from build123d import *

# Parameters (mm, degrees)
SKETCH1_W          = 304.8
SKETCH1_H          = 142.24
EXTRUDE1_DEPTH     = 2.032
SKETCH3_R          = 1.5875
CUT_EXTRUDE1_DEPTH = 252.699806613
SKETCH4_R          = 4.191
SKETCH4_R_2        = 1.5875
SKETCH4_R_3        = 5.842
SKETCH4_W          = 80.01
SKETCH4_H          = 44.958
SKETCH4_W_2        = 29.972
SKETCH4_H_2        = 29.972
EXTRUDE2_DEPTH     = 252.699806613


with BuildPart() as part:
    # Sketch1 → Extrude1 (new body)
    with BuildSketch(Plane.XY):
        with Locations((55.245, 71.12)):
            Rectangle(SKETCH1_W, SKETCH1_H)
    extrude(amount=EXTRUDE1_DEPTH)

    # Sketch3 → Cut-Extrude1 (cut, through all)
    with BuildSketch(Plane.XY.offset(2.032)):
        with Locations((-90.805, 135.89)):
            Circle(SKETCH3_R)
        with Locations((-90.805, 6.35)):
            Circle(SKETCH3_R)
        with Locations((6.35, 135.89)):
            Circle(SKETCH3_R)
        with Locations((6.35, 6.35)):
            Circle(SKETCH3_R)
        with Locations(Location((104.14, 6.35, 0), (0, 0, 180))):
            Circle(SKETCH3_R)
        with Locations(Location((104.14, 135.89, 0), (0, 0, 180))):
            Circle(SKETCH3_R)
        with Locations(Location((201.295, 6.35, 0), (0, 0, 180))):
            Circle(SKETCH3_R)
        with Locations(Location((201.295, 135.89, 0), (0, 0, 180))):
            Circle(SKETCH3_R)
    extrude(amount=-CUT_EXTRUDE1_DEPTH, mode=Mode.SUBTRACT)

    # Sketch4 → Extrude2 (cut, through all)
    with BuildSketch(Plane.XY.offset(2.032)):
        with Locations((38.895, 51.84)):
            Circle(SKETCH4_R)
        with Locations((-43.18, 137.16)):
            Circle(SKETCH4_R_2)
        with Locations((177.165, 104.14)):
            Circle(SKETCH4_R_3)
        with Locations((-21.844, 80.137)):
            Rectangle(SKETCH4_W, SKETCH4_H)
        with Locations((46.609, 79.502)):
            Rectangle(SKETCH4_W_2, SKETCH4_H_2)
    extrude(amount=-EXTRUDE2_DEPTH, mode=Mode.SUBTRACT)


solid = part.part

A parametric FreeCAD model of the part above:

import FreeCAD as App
import Part
import Sketcher

V = App.Vector
Q = App.Units.Quantity


def add_polygon(sketch, points):
    """Adds a closed chain of lines whose ends are joined by coincident constraints."""
    first, n = sketch.GeometryCount, len(points)
    for a, b in zip(points, points[1:] + points[:1]):
        sketch.addGeometry(Part.LineSegment(App.Vector(*a, 0), App.Vector(*b, 0)), False)
    for i in range(n):
        sketch.addConstraint(Sketcher.Constraint("Coincident", first + i, 2, first + (i + 1) % n, 1))

doc = App.newDocument("Part")
body = doc.addObject("PartDesign::Body", "Body")

# Sketch on XY plane
sketch1 = doc.addObject("Sketcher::SketchObject", "Sketch")
body.addObject(sketch1)
sketch1.AttachmentSupport = (doc.XY_Plane, [""])
sketch1.MapMode = "FlatFace"
add_polygon(sketch1, [(-97.155, 142.24), (-97.155, 0), (207.645, 0), (207.645, 142.24)])  # lines 0-3
sketch1.addConstraint([
    Sketcher.Constraint("Vertical", 0),
    Sketcher.Constraint("Horizontal", 1),
    Sketcher.Constraint("Vertical", 2),
    Sketcher.Constraint("Horizontal", 3),
    Sketcher.Constraint("PointOnObject", 0, 2, -1),
    Sketcher.Constraint("DistanceX", 1, 1, 1, 2, Q("12 in")),
    Sketcher.Constraint("DistanceY", 0, 2, 0, 1, Q("5.6 in")),
    Sketcher.Constraint("DistanceX", 0, 2, -1, 1, Q("3.825 in")),
])
pad1 = doc.addObject("PartDesign::Pad", "Pad")
body.addObject(pad1)
pad1.Profile = sketch1
pad1.Length = Q("0.08 in")

# Sketch on XY plane
sketch2 = doc.addObject("Sketcher::SketchObject", "Sketch001")
body.addObject(sketch2)
sketch2.AttachmentSupport = (doc.XY_Plane, [""])
sketch2.MapMode = "FlatFace"
sketch2.AttachmentOffset = App.Placement(V(0, 0, 0.08 * 25.4), App.Rotation())
sketch2.addGeometry([
    Part.Circle(V(-90.805, 135.89, 0), V(0, 0, 1), 1.5875),  # 0
    Part.Circle(V(-90.805, 6.35, 0), V(0, 0, 1), 1.5875),  # 1
    Part.Circle(V(6.35, 135.89, 0), V(0, 0, 1), 1.5875),  # 2
    Part.Circle(V(6.35, 6.35, 0), V(0, 0, 1), 1.5875),  # 3
    Part.Circle(V(104.14, 6.35, 0), V(0, 0, 1), 1.5875),  # 4
    Part.Circle(V(104.14, 135.89, 0), V(0, 0, 1), 1.5875),  # 5
    Part.Circle(V(201.295, 6.35, 0), V(0, 0, 1), 1.5875),  # 6
    Part.Circle(V(201.295, 135.89, 0), V(0, 0, 1), 1.5875),  # 7
], False)
sketch2.addConstraint([
    Sketcher.Constraint("Equal", 0, 1),
    Sketcher.Constraint("Equal", 1, 2),
    Sketcher.Constraint("Equal", 2, 3),
    Sketcher.Constraint("Equal", 3, 4),
    Sketcher.Constraint("Equal", 4, 5),
    Sketcher.Constraint("Equal", 5, 6),
    Sketcher.Constraint("Equal", 6, 7),
    Sketcher.Constraint("Horizontal", 0, 3, 2, 3),
    Sketcher.Constraint("Horizontal", 1, 3, 3, 3),
    Sketcher.Constraint("Horizontal", 3, 3, 4, 3),
    Sketcher.Constraint("Horizontal", 2, 3, 5, 3),
    Sketcher.Constraint("Horizontal", 4, 3, 6, 3),
    Sketcher.Constraint("Horizontal", 5, 3, 7, 3),
    Sketcher.Constraint("Vertical", 0, 3, 1, 3),
    Sketcher.Constraint("Vertical", 2, 3, 3, 3),
    Sketcher.Constraint("Vertical", 4, 3, 5, 3),
    Sketcher.Constraint("Vertical", 6, 3, 7, 3),
    Sketcher.Constraint("Diameter", 0, Q("0.125 in")),
    Sketcher.Constraint("DistanceX", -1, 1, 4, 3, Q("4.1 in")),
    Sketcher.Constraint("DistanceY", 1, 3, 0, 3, Q("5.1 in")),
    Sketcher.Constraint("DistanceX", 1, 3, 6, 3, Q("11.5 in")),
    Sketcher.Constraint("DistanceY", -1, 1, 0, 3, Q("5.35 in")),
    Sketcher.Constraint("DistanceX", -1, 1, 2, 3, Q("0.25 in")),
    Sketcher.Constraint("DistanceX", 0, 3, -1, 1, Q("3.575 in")),
])
pocket1 = doc.addObject("PartDesign::Pocket", "Pocket")
body.addObject(pocket1)
pocket1.Profile = sketch2
pocket1.Type = "ThroughAll"

# Sketch on XY plane
sketch3 = doc.addObject("Sketcher::SketchObject", "Sketch002")
body.addObject(sketch3)
sketch3.AttachmentSupport = (doc.XY_Plane, [""])
sketch3.MapMode = "FlatFace"
sketch3.AttachmentOffset = App.Placement(V(0, 0, 0.08 * 25.4), App.Rotation())
sketch3.addGeometry(Part.Circle(V(38.895, 51.84, 0), V(0, 0, 1), 4.191), False)  # 0
sketch3.addGeometry(Part.Circle(V(-43.18, 137.16, 0), V(0, 0, 1), 1.5875), False)  # 1
sketch3.addGeometry(Part.Circle(V(177.165, 104.14, 0), V(0, 0, 1), 5.842), False)  # 2
add_polygon(sketch3, [(-61.849, 102.616), (-61.849, 57.658), (18.161, 57.658), (18.161, 102.616)])  # lines 3-6
add_polygon(sketch3, [(31.623, 94.488), (31.623, 64.516), (61.595, 64.516), (61.595, 94.488)])  # lines 7-10
sketch3.addConstraint([
    Sketcher.Constraint("Vertical", 3),
    Sketcher.Constraint("Horizontal", 4),
    Sketcher.Constraint("Vertical", 5),
    Sketcher.Constraint("Horizontal", 6),
    Sketcher.Constraint("Vertical", 7),
    Sketcher.Constraint("Horizontal", 8),
    Sketcher.Constraint("Vertical", 9),
    Sketcher.Constraint("Horizontal", 10),
    Sketcher.Constraint("Equal", 10, 7),
    Sketcher.Constraint("Diameter", 0, Q("0.33 in")),
    Sketcher.Constraint("Diameter", 2, Q("0.46 in")),
    Sketcher.Constraint("Diameter", 1, Q("0.125 in")),
    Sketcher.Constraint("DistanceX", 4, 1, 4, 2, Q("3.15 in")),
    Sketcher.Constraint("DistanceX", 8, 1, 8, 2, Q("1.18 in")),
    Sketcher.Constraint("DistanceY", 3, 2, 3, 1, Q("1.77 in")),
    Sketcher.Constraint("DistanceX", 1, 3, -1, 1, Q("1.7 in")),
    Sketcher.Constraint("DistanceY", -1, 1, 1, 3, Q("5.4 in")),
    Sketcher.Constraint("DistanceY", -1, 1, 2, 3, Q("4.1 in")),
    Sketcher.Constraint("DistanceY", 7, 2, 5, 2, Q("1.5 in")),
    Sketcher.Constraint("DistanceY", -1, 1, 3, 2, Q("2.27 in")),
    Sketcher.Constraint("DistanceX", 3, 2, 2, 3, Q("9.41 in")),
    Sketcher.Constraint("DistanceX", 4, 2, 7, 2, Q("0.53 in")),
    Sketcher.Constraint("DistanceX", -1, 1, 2, 3, Q("6.975 in")),
    Sketcher.Constraint("DistanceX", -1, 1, 0, 3, 38.895),
    Sketcher.Constraint("DistanceY", -1, 1, 0, 3, 51.84),
])
pocket2 = doc.addObject("PartDesign::Pocket", "Pocket001")
body.addObject(pocket2)
pocket2.Profile = sketch3
pocket2.Type = "ThroughAll"

doc.recompute()
